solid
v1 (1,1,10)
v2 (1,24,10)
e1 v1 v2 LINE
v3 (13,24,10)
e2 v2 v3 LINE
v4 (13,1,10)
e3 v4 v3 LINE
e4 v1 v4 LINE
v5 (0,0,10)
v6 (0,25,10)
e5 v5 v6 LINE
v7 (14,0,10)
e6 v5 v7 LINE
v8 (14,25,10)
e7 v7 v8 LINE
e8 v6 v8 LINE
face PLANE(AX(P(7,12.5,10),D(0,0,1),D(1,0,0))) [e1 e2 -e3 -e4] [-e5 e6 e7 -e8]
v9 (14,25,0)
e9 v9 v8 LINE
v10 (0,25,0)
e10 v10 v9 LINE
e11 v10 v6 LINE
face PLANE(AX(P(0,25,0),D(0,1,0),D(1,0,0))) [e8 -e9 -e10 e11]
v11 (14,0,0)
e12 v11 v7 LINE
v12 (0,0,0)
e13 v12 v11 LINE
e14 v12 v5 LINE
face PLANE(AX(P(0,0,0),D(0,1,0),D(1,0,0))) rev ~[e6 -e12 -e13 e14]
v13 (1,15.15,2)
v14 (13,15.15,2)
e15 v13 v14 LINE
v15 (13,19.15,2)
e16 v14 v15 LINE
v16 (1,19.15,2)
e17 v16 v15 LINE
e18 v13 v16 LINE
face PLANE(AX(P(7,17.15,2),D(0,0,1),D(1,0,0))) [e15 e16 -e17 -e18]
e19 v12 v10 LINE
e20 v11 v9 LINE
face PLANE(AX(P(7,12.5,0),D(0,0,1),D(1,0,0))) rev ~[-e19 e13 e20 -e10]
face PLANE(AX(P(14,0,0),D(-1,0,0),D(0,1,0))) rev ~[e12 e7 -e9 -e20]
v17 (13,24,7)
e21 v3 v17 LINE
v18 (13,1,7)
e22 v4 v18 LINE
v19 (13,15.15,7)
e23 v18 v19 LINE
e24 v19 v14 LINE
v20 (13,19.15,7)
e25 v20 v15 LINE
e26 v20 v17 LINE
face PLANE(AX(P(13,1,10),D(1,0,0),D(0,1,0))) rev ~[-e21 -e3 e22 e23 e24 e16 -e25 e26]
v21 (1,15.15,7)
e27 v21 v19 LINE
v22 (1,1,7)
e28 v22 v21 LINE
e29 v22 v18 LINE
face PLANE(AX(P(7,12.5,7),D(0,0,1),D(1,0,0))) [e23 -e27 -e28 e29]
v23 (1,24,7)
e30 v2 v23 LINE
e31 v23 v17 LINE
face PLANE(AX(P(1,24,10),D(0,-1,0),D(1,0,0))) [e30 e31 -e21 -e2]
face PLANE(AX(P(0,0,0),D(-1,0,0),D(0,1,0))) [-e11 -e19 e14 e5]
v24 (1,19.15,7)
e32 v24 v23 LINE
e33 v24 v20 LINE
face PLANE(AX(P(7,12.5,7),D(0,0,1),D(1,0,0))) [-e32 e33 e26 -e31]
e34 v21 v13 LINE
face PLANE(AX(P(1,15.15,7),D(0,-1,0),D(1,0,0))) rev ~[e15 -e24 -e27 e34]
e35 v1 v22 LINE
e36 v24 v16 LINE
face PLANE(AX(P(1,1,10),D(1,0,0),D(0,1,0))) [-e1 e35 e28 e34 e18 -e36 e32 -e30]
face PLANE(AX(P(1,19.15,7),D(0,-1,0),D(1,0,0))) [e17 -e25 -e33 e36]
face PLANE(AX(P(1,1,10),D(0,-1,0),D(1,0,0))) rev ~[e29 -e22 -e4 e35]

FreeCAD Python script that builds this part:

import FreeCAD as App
import Part
import Sketcher
from FreeCAD import Vector
Q = App.Units.Quantity

doc = App.newDocument("Part")
body = doc.addObject("PartDesign::Body", "Body")

sketch1 = body.newObject("Sketcher::SketchObject", "Sketch")
sketch1.AttachmentSupport = (doc.getObject("XY_Plane"), [""])
sketch1.MapMode = "FlatFace"
sketch1.addGeometry(Part.LineSegment(Vector(0, 25, 0), Vector(0, 0, 0)), False)
sketch1.addGeometry(Part.LineSegment(Vector(0, 0, 0), Vector(14, 0, 0)), False)
sketch1.addGeometry(Part.LineSegment(Vector(14, 0, 0), Vector(14, 25, 0)), False)
sketch1.addGeometry(Part.LineSegment(Vector(14, 25, 0), Vector(0, 25, 0)), False)
sketch1.addConstraint(Sketcher.Constraint("Coincident", 0, 2, 1, 1))
sketch1.addConstraint(Sketcher.Constraint("Coincident", 1, 2, 2, 1))
sketch1.addConstraint(Sketcher.Constraint("Coincident", 2, 2, 3, 1))
sketch1.addConstraint(Sketcher.Constraint("Coincident", 3, 2, 0, 1))
sketch1.addConstraint(Sketcher.Constraint("Vertical", 0))
sketch1.addConstraint(Sketcher.Constraint("Horizontal", 1))
sketch1.addConstraint(Sketcher.Constraint("Vertical", 2))
sketch1.addConstraint(Sketcher.Constraint("Horizontal", 3))
sketch1.addConstraint(Sketcher.Constraint("Coincident", 0, 2, -1, 1))
sketch1.addConstraint(Sketcher.Constraint("DistanceX", 1, 1, 1, 2, Q("14 mm")))
sketch1.addConstraint(Sketcher.Constraint("DistanceY", 0, 2, 0, 1, Q("25 mm")))
pad1 = body.newObject("PartDesign::Pad", "Pad")
pad1.Profile = sketch1
pad1.Length = 10

sketch2 = body.newObject("Sketcher::SketchObject", "Sketch001")
sketch2.AttachmentSupport = (doc.getObject("XY_Plane"), [""])
sketch2.MapMode = "FlatFace"
sketch2.AttachmentOffset = App.Placement(Vector(0, 0, 10), App.Rotation())
sketch2.addGeometry(Part.LineSegment(Vector(1, 24, 0), Vector(1, 1, 0)), False)
sketch2.addGeometry(Part.LineSegment(Vector(1, 1, 0), Vector(13, 1, 0)), False)
sketch2.addGeometry(Part.LineSegment(Vector(13, 1, 0), Vector(13, 24, 0)), False)
sketch2.addGeometry(Part.LineSegment(Vector(13, 24, 0), Vector(1, 24, 0)), False)
sketch2.addConstraint(Sketcher.Constraint("Coincident", 0, 2, 1, 1))
sketch2.addConstraint(Sketcher.Constraint("Coincident", 1, 2, 2, 1))
sketch2.addConstraint(Sketcher.Constraint("Coincident", 2, 2, 3, 1))
sketch2.addConstraint(Sketcher.Constraint("Coincident", 3, 2, 0, 1))
sketch2.addConstraint(Sketcher.Constraint("Vertical", 0))
sketch2.addConstraint(Sketcher.Constraint("Horizontal", 1))
sketch2.addConstraint(Sketcher.Constraint("Vertical", 2))
sketch2.addConstraint(Sketcher.Constraint("Horizontal", 3))
sketch2.addConstraint(Sketcher.Constraint("DistanceX", 1, 1, 1, 2, Q("12 mm")))
sketch2.addConstraint(Sketcher.Constraint("DistanceY", 0, 2, 0, 1, Q("23 mm")))
sketch2.addConstraint(Sketcher.Constraint("DistanceX", -1, 1, 0, 2, Q("1 mm")))
sketch2.addConstraint(Sketcher.Constraint("DistanceY", -1, 1, 0, 2, Q("1 mm")))
pocket1 = body.newObject("PartDesign::Pocket", "Pocket")
pocket1.Profile = sketch2
pocket1.Length = 3

sketch3 = body.newObject("Sketcher::SketchObject", "Sketch002")
sketch3.AttachmentSupport = (doc.getObject("XY_Plane"), [""])
sketch3.MapMode = "FlatFace"
sketch3.AttachmentOffset = App.Placement(Vector(0, 0, 7), App.Rotation())
sketch3.addGeometry(Part.LineSegment(Vector(1, 19.1, 0), Vector(1, 15.2, 0)), False)
sketch3.addGeometry(Part.LineSegment(Vector(1, 15.2, 0), Vector(13, 15.2, 0)), False)
sketch3.addGeometry(Part.LineSegment(Vector(13, 15.2, 0), Vector(13, 19.1, 0)), False)
sketch3.addGeometry(Part.LineSegment(Vector(13, 19.1, 0), Vector(1, 19.1, 0)), False)
sketch3.addConstraint(Sketcher.Constraint("Coincident", 0, 2, 1, 1))
sketch3.addConstraint(Sketcher.Constraint("Coincident", 1, 2, 2, 1))
sketch3.addConstraint(Sketcher.Constraint("Coincident", 2, 2, 3, 1))
sketch3.addConstraint(Sketcher.Constraint("Coincident", 3, 2, 0, 1))
sketch3.addConstraint(Sketcher.Constraint("Vertical", 0))
sketch3.addConstraint(Sketcher.Constraint("Horizontal", 1))
sketch3.addConstraint(Sketcher.Constraint("Vertical", 2))
sketch3.addConstraint(Sketcher.Constraint("Horizontal", 3))
sketch3.addConstraint(Sketcher.Constraint("DistanceX", 1, 1, 1, 2, Q("12 mm")))
sketch3.addConstraint(Sketcher.Constraint("DistanceY", 0, 2, 0, 1, Q("4 mm")))
sketch3.addConstraint(Sketcher.Constraint("DistanceX", -1, 1, 0, 2, Q("1 mm")))
sketch3.addConstraint(Sketcher.Constraint("DistanceY", -1, 1, 0, 2, Q("15.15 mm")))
pocket2 = body.newObject("PartDesign::Pocket", "Pocket001")
pocket2.Profile = sketch3
pocket2.Length = 5

doc.recompute()
